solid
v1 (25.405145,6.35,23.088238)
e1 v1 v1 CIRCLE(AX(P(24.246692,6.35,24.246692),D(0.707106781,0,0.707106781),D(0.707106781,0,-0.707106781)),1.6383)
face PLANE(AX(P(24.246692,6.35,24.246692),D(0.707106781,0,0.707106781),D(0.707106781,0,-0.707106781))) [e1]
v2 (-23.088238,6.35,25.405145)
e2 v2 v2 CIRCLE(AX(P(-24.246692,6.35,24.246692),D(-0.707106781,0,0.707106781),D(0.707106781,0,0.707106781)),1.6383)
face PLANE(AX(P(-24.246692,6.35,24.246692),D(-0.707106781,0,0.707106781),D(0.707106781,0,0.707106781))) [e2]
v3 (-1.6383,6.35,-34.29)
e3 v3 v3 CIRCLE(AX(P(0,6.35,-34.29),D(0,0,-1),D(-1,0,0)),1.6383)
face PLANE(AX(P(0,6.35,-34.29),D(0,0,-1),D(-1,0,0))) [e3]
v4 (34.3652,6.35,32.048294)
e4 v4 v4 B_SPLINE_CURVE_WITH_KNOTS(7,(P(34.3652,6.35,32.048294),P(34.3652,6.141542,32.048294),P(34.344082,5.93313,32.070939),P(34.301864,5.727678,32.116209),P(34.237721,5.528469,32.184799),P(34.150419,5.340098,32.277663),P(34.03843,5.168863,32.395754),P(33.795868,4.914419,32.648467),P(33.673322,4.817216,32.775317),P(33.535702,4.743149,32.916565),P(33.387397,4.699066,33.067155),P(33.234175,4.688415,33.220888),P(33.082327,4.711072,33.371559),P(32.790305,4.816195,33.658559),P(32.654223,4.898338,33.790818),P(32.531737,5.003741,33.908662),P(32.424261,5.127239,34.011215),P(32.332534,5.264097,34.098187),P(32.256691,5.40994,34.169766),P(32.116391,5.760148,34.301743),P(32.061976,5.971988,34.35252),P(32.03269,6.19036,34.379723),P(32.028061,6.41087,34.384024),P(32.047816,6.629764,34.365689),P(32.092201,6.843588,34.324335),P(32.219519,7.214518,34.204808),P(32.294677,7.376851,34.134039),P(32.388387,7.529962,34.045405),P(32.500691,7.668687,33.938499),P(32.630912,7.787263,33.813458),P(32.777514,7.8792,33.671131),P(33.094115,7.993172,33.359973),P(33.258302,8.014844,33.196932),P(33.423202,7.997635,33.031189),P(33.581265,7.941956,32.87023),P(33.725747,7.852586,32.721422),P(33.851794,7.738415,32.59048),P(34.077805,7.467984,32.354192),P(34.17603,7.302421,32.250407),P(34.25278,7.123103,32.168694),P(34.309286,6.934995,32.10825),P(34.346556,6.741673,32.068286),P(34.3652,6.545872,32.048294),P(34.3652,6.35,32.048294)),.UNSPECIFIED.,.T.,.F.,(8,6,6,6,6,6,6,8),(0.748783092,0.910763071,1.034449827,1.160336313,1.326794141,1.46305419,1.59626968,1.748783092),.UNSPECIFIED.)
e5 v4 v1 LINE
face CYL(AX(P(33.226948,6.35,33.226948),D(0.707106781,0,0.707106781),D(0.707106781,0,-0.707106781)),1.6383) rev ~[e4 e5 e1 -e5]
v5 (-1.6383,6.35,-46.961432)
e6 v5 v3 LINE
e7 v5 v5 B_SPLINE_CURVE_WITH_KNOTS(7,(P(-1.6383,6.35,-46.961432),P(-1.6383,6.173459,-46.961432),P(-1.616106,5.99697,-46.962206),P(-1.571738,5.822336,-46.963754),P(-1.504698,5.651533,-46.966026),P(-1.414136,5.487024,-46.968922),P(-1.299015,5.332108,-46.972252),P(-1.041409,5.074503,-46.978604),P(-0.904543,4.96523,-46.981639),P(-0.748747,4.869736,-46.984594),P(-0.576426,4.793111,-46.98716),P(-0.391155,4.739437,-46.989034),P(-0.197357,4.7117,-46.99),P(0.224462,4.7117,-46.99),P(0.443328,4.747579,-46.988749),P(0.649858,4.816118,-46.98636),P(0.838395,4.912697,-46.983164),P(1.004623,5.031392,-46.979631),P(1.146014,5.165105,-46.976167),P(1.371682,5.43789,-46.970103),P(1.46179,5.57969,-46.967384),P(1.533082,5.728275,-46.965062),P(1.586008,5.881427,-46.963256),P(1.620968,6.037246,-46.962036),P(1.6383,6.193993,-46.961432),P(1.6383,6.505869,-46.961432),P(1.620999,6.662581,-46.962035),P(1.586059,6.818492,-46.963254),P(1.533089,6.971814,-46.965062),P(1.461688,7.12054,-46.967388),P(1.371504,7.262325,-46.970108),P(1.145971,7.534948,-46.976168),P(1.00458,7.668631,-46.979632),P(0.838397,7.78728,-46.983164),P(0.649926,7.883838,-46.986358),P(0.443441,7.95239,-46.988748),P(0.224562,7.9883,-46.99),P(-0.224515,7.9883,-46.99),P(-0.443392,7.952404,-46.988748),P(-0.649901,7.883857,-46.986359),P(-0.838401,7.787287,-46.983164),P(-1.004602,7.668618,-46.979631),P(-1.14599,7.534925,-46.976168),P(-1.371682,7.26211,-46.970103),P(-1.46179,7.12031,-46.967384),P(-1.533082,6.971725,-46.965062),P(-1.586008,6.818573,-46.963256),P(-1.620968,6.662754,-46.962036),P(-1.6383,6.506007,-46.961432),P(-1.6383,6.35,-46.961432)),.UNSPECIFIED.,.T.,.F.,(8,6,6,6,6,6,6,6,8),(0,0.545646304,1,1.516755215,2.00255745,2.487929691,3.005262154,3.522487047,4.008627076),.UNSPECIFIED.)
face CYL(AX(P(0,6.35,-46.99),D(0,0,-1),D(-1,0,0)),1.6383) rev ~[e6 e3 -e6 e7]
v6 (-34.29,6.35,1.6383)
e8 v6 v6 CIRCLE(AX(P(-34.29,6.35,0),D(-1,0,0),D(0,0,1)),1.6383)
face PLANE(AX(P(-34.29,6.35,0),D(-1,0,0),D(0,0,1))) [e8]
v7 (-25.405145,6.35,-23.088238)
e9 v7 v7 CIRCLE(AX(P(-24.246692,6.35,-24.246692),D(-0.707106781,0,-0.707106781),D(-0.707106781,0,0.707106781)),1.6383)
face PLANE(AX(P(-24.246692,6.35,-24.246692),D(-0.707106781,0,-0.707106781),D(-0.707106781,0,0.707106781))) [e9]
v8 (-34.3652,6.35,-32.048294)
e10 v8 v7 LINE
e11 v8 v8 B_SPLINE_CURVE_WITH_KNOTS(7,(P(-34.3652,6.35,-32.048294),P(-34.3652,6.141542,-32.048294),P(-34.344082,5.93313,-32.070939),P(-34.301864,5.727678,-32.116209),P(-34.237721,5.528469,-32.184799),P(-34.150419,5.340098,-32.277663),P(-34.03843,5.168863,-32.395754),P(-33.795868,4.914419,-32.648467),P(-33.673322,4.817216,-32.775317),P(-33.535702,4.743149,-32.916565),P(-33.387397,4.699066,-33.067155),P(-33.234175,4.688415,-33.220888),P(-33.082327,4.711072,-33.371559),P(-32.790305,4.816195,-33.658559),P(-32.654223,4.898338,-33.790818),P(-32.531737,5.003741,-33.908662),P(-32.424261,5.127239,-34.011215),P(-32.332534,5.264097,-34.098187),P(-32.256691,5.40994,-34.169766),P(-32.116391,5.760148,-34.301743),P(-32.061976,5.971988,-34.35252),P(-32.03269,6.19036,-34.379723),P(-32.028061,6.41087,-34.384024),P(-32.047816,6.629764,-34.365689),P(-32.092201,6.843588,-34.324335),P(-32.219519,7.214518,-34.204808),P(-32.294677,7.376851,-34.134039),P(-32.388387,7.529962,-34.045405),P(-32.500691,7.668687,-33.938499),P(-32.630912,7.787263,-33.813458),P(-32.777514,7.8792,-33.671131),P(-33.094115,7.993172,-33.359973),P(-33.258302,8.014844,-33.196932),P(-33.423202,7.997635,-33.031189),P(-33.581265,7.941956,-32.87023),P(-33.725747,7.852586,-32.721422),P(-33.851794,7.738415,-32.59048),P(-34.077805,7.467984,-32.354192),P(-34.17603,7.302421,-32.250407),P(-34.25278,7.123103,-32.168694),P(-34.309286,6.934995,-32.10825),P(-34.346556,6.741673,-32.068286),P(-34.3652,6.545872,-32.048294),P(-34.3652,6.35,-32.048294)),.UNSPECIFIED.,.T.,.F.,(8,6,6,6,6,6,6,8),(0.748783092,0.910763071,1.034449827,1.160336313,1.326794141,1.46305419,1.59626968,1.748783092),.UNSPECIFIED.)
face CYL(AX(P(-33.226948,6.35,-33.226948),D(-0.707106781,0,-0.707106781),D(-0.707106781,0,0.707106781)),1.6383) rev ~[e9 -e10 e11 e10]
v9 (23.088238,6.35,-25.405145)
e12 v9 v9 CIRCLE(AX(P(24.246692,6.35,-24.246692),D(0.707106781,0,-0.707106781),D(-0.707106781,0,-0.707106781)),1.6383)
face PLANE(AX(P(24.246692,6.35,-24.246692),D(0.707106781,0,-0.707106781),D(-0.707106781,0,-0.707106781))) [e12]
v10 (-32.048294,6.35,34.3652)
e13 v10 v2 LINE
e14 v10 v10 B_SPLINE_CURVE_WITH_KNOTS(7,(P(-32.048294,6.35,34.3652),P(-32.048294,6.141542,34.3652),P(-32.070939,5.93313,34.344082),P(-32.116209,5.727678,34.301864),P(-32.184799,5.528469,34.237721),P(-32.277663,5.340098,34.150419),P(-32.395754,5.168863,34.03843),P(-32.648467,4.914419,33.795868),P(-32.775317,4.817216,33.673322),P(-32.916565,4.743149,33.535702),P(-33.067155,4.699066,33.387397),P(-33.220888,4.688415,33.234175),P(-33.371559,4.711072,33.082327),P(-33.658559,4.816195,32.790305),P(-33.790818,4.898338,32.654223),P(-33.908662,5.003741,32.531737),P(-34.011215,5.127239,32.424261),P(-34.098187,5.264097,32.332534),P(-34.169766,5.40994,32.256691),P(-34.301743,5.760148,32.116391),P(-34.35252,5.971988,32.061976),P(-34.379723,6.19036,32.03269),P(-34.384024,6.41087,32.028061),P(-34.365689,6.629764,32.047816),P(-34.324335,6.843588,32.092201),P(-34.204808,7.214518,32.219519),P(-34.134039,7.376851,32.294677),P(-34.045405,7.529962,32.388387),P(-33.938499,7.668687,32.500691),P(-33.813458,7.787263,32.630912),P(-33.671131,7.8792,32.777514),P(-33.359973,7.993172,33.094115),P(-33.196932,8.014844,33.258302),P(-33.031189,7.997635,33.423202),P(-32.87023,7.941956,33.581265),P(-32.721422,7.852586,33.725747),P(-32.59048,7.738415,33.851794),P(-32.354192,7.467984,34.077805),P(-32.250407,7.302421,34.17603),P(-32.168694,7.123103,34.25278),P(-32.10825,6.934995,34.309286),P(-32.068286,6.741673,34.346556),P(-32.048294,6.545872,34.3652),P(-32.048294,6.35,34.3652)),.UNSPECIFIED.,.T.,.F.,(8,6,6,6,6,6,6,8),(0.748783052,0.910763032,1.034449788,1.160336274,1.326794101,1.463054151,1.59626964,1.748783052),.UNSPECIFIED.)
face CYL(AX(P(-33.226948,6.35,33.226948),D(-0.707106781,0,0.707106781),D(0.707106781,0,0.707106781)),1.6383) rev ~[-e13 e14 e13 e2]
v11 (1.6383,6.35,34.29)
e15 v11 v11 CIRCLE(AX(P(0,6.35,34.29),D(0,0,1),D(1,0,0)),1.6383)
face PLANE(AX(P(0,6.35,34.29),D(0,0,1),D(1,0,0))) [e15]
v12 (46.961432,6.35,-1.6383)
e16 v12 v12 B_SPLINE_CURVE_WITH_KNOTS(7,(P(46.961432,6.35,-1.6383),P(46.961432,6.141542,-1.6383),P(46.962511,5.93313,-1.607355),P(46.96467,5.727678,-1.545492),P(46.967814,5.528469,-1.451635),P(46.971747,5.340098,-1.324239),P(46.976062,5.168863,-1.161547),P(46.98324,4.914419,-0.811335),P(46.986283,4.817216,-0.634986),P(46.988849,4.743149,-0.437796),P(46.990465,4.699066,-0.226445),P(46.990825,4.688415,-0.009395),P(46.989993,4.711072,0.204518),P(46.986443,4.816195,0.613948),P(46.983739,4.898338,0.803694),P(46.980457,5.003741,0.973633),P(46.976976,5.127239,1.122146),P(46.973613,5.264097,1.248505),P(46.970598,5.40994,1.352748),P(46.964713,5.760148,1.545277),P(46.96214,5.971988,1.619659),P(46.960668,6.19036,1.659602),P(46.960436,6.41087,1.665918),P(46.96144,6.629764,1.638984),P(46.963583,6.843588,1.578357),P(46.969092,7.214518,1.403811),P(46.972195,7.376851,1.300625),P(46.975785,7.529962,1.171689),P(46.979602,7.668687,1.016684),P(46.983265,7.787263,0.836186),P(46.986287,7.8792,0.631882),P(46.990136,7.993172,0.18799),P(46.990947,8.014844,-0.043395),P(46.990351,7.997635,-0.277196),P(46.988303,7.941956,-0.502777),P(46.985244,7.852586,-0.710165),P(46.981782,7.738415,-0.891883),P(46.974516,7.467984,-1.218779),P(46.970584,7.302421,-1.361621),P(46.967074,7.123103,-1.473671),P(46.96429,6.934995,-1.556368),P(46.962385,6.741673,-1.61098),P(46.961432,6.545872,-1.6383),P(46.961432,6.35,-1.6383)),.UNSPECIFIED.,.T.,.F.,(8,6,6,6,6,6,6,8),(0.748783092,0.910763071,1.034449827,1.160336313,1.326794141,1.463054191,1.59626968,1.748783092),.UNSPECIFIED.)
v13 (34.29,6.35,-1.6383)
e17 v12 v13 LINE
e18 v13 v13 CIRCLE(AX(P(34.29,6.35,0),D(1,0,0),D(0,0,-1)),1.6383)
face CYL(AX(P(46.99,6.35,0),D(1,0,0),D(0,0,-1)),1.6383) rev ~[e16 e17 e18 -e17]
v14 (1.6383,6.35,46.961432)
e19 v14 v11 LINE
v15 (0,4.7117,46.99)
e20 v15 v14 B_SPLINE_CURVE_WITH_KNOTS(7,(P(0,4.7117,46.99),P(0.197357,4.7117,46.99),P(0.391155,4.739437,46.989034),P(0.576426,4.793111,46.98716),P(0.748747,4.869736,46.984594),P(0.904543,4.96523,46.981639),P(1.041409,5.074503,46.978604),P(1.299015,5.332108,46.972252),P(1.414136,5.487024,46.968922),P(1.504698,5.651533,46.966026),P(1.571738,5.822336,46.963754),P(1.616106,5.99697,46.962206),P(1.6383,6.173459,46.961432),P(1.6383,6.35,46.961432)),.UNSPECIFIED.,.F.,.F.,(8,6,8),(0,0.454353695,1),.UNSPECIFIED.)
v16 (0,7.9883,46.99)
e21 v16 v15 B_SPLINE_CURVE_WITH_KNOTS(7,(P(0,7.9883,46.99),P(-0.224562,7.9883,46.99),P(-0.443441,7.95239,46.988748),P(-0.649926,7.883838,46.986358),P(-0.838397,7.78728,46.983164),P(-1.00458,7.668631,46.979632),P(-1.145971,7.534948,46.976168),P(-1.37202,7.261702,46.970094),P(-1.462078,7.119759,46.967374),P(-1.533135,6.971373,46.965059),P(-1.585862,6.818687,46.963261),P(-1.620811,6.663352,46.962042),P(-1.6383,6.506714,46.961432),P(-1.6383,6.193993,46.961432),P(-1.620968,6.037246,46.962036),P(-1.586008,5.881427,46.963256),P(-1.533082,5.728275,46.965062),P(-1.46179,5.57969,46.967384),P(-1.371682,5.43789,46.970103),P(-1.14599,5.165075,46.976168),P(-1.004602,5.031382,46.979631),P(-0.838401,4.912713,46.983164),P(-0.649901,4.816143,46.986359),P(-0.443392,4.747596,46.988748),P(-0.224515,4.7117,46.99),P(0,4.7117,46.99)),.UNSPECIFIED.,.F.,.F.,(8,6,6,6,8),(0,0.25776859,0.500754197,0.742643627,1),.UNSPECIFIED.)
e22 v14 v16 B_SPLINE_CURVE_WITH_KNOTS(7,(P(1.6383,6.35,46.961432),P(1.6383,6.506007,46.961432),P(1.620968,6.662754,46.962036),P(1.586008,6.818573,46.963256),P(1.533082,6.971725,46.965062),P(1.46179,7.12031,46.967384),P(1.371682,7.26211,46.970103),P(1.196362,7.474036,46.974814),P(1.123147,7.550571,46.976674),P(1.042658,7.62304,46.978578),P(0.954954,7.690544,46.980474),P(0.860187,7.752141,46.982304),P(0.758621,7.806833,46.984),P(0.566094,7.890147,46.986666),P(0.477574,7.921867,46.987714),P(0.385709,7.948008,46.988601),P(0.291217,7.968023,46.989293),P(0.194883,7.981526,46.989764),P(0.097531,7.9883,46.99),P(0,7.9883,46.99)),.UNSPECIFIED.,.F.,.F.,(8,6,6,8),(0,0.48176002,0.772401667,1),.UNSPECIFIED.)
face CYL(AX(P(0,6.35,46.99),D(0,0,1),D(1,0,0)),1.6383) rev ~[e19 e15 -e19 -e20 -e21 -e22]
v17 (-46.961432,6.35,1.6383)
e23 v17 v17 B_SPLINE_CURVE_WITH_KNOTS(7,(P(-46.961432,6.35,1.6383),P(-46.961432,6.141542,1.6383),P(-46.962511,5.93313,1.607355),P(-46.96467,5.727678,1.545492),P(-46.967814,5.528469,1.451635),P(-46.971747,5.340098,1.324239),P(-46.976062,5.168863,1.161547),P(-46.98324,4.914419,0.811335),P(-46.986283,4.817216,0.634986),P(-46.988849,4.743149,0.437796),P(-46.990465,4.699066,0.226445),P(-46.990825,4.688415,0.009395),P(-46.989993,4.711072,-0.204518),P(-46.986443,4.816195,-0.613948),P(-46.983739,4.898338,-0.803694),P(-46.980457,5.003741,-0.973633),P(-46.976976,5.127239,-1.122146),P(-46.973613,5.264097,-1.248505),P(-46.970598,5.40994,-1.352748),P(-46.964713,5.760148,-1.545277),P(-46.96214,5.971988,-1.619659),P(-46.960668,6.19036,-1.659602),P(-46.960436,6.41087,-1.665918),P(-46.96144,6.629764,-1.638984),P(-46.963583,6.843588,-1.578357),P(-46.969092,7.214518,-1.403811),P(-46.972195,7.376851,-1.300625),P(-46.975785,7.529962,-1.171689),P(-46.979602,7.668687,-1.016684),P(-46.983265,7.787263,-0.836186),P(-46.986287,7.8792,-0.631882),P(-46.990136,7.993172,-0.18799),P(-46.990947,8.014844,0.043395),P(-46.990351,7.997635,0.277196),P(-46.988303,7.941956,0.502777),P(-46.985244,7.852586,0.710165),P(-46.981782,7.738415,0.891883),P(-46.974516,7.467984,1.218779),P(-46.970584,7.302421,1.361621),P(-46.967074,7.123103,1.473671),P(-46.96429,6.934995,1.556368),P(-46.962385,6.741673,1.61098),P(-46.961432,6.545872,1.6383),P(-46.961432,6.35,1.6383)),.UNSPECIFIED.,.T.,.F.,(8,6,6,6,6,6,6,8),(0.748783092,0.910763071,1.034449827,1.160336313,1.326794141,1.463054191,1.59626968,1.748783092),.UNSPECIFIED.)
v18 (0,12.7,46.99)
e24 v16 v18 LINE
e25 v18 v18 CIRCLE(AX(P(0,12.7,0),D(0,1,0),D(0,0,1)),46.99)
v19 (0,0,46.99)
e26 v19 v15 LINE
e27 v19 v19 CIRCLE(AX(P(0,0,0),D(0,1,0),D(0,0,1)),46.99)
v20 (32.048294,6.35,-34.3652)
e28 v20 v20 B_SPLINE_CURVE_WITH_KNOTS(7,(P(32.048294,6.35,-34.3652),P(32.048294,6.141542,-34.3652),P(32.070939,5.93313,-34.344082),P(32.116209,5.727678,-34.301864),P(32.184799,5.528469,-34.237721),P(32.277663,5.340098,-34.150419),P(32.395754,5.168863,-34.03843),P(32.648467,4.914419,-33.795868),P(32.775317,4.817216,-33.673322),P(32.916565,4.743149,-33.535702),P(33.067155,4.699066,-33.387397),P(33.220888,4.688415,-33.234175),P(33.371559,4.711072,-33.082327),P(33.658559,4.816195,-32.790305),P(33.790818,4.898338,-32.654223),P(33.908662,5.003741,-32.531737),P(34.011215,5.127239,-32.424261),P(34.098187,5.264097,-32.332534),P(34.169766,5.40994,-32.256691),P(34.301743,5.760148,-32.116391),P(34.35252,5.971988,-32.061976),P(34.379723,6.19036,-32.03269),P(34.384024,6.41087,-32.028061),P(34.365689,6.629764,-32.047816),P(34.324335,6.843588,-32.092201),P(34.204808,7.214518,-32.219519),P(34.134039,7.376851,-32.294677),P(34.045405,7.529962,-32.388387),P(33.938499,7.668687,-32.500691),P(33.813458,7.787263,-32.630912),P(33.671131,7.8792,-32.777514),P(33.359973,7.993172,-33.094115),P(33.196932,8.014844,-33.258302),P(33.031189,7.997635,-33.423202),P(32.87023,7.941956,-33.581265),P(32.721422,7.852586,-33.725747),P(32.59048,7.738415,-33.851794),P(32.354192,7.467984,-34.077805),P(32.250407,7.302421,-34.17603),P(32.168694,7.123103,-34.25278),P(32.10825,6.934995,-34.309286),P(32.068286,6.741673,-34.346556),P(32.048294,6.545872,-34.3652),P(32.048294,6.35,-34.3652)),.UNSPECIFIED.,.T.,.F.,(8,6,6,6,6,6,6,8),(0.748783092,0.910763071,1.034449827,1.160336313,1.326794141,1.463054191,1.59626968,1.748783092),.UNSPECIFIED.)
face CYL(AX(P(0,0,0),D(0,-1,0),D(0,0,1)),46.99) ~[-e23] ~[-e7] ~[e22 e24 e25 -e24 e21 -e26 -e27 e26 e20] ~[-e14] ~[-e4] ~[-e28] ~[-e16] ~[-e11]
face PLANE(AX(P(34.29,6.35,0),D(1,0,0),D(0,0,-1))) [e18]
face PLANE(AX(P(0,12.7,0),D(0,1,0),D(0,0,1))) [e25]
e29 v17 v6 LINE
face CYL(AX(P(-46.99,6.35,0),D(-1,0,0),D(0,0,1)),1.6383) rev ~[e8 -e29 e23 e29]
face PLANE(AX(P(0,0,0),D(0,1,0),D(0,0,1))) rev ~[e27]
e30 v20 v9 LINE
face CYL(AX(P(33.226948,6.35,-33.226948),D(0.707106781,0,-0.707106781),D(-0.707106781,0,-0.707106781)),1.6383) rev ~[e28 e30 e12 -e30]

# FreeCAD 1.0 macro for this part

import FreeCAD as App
import Part
import Sketcher
from FreeCAD import Vector
Q = App.Units.Quantity

doc = App.newDocument("Part")
body = doc.addObject("PartDesign::Body", "Body")

# Sketch on XZ plane
sketch1 = body.newObject("Sketcher::SketchObject", "Sketch")
sketch1.AttachmentSupport = (doc.getObject("XZ_Plane"), [""])
sketch1.MapMode = "FlatFace"
sketch1.addGeometry(Part.Circle(Vector(0, 0, 0), Vector(0, 0, 1), 47), False)
sketch1.addConstraint([
    Sketcher.Constraint("Coincident", 0, 3, -1, 1),
    Sketcher.Constraint("Diameter", 0, Q("3.7 in")),
])
pad1 = body.newObject("PartDesign::Pad", "Pad")
pad1.Profile = sketch1
pad1.Length = Q("0.5 in")
pad1.Reversed = True

# Sketch on XY plane
sketch2 = body.newObject("Sketcher::SketchObject", "Sketch001")
sketch2.AttachmentSupport = (doc.getObject("XY_Plane"), [""])
sketch2.MapMode = "FlatFace"
sketch2.AttachmentOffset = App.Placement(Vector(0, 0, 1.85 * 25.4), App.Rotation())
sketch2.addGeometry(Part.Circle(Vector(0, 6.3, 0), Vector(0, 0, 1), 1.6), False)
sketch2.addConstraint([
    Sketcher.Constraint("PointOnObject", 0, 3, -2),
    Sketcher.Constraint("Diameter", 0, Q("0.129 in")),
    Sketcher.Constraint("DistanceY", -1, 1, 0, 3, Q("0.25 in")),
])
pocket1 = body.newObject("PartDesign::Pocket", "Pocket")
pocket1.Profile = sketch2
pocket1.Length = Q("0.5 in")
doc.recompute()

polarpattern = body.newObject("PartDesign::PolarPattern", "PolarPattern")
polarpattern.Originals = [pocket1]
polarpattern.Axis = (doc.getObject("Y_Axis"), [""])
polarpattern.Angle = 360
polarpattern.Occurrences = 8
body.Tip = polarpattern

doc.recompute()
